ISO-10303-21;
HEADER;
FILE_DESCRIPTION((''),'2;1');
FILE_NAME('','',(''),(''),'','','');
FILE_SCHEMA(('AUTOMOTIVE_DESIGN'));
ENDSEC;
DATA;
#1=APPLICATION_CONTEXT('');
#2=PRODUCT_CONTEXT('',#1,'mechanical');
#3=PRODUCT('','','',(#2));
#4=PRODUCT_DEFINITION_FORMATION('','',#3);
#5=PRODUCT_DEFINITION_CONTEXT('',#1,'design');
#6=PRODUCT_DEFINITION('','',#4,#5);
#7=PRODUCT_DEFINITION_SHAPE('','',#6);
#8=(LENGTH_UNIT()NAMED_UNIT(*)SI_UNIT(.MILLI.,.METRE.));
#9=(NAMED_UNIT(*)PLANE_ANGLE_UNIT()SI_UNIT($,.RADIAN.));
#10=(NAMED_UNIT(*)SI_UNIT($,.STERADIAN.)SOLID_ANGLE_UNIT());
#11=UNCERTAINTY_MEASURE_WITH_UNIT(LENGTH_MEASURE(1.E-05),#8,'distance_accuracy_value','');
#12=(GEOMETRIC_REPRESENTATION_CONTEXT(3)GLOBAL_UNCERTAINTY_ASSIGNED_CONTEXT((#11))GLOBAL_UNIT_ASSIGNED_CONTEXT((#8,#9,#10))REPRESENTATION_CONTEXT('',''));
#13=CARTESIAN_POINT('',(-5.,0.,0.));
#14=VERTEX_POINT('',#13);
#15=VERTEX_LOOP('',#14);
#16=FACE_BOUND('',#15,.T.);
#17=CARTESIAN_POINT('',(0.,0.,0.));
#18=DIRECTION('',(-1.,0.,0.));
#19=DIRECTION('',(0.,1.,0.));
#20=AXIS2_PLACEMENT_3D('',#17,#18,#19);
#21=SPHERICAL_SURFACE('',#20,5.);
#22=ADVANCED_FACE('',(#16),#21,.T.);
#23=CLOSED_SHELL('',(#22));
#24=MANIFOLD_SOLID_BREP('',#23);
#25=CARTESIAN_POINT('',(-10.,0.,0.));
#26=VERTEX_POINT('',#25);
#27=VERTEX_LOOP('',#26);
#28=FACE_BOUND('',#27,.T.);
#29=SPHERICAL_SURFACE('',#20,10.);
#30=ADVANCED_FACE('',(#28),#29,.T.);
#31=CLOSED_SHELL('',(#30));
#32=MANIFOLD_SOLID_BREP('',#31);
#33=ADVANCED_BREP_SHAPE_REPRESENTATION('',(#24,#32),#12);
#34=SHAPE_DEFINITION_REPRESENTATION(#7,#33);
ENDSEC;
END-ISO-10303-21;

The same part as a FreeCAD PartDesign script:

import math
import FreeCAD as App
import Part
import Sketcher
from FreeCAD import Vector

doc = App.newDocument("Part")
body = doc.addObject("PartDesign::Body", "Body")

# Sketch on XY plane
sketch1 = doc.addObject("Sketcher::SketchObject", "Sketch")
body.addObject(sketch1)
sketch1.AttachmentSupport = (doc.XY_Plane, [""])
sketch1.MapMode = "FlatFace"
sketch1.addGeometry(Part.LineSegment(Vector(-5, 0, 0), Vector(5, 0, 0)), False)
sketch1.addGeometry(Part.ArcOfCircle(Part.Circle(Vector(0, 0, 0), Vector(0, 0, 1), 5), math.radians(0), math.radians(180)), False)
sketch1.addConstraint(Sketcher.Constraint("Coincident", 0, 1, 1, 2))
sketch1.addConstraint(Sketcher.Constraint("Coincident", 1, 1, 0, 2))
sketch1.addConstraint(Sketcher.Constraint("Horizontal", 0))
sketch1.addConstraint(Sketcher.Constraint("Coincident", 1, 3, -1, 1))
sketch1.addConstraint(Sketcher.Constraint("PointOnObject", 0, 1, -1))
sketch1.addConstraint(Sketcher.Constraint("Radius", 1, 5.0))
revolution = doc.addObject("PartDesign::Revolution", "Revolution")
body.addObject(revolution)
revolution.Profile = sketch1
revolution.ReferenceAxis = (sketch1, ["H_Axis"])
revolution.Angle = 360
body2 = doc.addObject("PartDesign::Body", "Body001")

# Sketch on XY plane
sketch2 = doc.addObject("Sketcher::SketchObject", "Sketch001")
body2.addObject(sketch2)
sketch2.AttachmentSupport = (doc.getObject("XY_Plane001"), [""])
sketch2.MapMode = "FlatFace"
sketch2.addGeometry(Part.LineSegment(Vector(-10, 0, 0), Vector(10, 0, 0)), False)
sketch2.addGeometry(Part.ArcOfCircle(Part.Circle(Vector(0, 0, 0), Vector(0, 0, 1), 10), math.radians(0), math.radians(180)), False)
sketch2.addConstraint(Sketcher.Constraint("Coincident", 0, 1, 1, 2))
sketch2.addConstraint(Sketcher.Constraint("Coincident", 1, 1, 0, 2))
sketch2.addConstraint(Sketcher.Constraint("Horizontal", 0))
sketch2.addConstraint(Sketcher.Constraint("Coincident", 1, 3, -1, 1))
sketch2.addConstraint(Sketcher.Constraint("PointOnObject", 0, 1, -1))
sketch2.addConstraint(Sketcher.Constraint("Radius", 1, 10.0))
revolution2 = doc.addObject("PartDesign::Revolution", "Revolution001")
body2.addObject(revolution2)
revolution2.Profile = sketch2
revolution2.ReferenceAxis = (sketch2, ["H_Axis"])
revolution2.Angle = 360

doc.recompute()
